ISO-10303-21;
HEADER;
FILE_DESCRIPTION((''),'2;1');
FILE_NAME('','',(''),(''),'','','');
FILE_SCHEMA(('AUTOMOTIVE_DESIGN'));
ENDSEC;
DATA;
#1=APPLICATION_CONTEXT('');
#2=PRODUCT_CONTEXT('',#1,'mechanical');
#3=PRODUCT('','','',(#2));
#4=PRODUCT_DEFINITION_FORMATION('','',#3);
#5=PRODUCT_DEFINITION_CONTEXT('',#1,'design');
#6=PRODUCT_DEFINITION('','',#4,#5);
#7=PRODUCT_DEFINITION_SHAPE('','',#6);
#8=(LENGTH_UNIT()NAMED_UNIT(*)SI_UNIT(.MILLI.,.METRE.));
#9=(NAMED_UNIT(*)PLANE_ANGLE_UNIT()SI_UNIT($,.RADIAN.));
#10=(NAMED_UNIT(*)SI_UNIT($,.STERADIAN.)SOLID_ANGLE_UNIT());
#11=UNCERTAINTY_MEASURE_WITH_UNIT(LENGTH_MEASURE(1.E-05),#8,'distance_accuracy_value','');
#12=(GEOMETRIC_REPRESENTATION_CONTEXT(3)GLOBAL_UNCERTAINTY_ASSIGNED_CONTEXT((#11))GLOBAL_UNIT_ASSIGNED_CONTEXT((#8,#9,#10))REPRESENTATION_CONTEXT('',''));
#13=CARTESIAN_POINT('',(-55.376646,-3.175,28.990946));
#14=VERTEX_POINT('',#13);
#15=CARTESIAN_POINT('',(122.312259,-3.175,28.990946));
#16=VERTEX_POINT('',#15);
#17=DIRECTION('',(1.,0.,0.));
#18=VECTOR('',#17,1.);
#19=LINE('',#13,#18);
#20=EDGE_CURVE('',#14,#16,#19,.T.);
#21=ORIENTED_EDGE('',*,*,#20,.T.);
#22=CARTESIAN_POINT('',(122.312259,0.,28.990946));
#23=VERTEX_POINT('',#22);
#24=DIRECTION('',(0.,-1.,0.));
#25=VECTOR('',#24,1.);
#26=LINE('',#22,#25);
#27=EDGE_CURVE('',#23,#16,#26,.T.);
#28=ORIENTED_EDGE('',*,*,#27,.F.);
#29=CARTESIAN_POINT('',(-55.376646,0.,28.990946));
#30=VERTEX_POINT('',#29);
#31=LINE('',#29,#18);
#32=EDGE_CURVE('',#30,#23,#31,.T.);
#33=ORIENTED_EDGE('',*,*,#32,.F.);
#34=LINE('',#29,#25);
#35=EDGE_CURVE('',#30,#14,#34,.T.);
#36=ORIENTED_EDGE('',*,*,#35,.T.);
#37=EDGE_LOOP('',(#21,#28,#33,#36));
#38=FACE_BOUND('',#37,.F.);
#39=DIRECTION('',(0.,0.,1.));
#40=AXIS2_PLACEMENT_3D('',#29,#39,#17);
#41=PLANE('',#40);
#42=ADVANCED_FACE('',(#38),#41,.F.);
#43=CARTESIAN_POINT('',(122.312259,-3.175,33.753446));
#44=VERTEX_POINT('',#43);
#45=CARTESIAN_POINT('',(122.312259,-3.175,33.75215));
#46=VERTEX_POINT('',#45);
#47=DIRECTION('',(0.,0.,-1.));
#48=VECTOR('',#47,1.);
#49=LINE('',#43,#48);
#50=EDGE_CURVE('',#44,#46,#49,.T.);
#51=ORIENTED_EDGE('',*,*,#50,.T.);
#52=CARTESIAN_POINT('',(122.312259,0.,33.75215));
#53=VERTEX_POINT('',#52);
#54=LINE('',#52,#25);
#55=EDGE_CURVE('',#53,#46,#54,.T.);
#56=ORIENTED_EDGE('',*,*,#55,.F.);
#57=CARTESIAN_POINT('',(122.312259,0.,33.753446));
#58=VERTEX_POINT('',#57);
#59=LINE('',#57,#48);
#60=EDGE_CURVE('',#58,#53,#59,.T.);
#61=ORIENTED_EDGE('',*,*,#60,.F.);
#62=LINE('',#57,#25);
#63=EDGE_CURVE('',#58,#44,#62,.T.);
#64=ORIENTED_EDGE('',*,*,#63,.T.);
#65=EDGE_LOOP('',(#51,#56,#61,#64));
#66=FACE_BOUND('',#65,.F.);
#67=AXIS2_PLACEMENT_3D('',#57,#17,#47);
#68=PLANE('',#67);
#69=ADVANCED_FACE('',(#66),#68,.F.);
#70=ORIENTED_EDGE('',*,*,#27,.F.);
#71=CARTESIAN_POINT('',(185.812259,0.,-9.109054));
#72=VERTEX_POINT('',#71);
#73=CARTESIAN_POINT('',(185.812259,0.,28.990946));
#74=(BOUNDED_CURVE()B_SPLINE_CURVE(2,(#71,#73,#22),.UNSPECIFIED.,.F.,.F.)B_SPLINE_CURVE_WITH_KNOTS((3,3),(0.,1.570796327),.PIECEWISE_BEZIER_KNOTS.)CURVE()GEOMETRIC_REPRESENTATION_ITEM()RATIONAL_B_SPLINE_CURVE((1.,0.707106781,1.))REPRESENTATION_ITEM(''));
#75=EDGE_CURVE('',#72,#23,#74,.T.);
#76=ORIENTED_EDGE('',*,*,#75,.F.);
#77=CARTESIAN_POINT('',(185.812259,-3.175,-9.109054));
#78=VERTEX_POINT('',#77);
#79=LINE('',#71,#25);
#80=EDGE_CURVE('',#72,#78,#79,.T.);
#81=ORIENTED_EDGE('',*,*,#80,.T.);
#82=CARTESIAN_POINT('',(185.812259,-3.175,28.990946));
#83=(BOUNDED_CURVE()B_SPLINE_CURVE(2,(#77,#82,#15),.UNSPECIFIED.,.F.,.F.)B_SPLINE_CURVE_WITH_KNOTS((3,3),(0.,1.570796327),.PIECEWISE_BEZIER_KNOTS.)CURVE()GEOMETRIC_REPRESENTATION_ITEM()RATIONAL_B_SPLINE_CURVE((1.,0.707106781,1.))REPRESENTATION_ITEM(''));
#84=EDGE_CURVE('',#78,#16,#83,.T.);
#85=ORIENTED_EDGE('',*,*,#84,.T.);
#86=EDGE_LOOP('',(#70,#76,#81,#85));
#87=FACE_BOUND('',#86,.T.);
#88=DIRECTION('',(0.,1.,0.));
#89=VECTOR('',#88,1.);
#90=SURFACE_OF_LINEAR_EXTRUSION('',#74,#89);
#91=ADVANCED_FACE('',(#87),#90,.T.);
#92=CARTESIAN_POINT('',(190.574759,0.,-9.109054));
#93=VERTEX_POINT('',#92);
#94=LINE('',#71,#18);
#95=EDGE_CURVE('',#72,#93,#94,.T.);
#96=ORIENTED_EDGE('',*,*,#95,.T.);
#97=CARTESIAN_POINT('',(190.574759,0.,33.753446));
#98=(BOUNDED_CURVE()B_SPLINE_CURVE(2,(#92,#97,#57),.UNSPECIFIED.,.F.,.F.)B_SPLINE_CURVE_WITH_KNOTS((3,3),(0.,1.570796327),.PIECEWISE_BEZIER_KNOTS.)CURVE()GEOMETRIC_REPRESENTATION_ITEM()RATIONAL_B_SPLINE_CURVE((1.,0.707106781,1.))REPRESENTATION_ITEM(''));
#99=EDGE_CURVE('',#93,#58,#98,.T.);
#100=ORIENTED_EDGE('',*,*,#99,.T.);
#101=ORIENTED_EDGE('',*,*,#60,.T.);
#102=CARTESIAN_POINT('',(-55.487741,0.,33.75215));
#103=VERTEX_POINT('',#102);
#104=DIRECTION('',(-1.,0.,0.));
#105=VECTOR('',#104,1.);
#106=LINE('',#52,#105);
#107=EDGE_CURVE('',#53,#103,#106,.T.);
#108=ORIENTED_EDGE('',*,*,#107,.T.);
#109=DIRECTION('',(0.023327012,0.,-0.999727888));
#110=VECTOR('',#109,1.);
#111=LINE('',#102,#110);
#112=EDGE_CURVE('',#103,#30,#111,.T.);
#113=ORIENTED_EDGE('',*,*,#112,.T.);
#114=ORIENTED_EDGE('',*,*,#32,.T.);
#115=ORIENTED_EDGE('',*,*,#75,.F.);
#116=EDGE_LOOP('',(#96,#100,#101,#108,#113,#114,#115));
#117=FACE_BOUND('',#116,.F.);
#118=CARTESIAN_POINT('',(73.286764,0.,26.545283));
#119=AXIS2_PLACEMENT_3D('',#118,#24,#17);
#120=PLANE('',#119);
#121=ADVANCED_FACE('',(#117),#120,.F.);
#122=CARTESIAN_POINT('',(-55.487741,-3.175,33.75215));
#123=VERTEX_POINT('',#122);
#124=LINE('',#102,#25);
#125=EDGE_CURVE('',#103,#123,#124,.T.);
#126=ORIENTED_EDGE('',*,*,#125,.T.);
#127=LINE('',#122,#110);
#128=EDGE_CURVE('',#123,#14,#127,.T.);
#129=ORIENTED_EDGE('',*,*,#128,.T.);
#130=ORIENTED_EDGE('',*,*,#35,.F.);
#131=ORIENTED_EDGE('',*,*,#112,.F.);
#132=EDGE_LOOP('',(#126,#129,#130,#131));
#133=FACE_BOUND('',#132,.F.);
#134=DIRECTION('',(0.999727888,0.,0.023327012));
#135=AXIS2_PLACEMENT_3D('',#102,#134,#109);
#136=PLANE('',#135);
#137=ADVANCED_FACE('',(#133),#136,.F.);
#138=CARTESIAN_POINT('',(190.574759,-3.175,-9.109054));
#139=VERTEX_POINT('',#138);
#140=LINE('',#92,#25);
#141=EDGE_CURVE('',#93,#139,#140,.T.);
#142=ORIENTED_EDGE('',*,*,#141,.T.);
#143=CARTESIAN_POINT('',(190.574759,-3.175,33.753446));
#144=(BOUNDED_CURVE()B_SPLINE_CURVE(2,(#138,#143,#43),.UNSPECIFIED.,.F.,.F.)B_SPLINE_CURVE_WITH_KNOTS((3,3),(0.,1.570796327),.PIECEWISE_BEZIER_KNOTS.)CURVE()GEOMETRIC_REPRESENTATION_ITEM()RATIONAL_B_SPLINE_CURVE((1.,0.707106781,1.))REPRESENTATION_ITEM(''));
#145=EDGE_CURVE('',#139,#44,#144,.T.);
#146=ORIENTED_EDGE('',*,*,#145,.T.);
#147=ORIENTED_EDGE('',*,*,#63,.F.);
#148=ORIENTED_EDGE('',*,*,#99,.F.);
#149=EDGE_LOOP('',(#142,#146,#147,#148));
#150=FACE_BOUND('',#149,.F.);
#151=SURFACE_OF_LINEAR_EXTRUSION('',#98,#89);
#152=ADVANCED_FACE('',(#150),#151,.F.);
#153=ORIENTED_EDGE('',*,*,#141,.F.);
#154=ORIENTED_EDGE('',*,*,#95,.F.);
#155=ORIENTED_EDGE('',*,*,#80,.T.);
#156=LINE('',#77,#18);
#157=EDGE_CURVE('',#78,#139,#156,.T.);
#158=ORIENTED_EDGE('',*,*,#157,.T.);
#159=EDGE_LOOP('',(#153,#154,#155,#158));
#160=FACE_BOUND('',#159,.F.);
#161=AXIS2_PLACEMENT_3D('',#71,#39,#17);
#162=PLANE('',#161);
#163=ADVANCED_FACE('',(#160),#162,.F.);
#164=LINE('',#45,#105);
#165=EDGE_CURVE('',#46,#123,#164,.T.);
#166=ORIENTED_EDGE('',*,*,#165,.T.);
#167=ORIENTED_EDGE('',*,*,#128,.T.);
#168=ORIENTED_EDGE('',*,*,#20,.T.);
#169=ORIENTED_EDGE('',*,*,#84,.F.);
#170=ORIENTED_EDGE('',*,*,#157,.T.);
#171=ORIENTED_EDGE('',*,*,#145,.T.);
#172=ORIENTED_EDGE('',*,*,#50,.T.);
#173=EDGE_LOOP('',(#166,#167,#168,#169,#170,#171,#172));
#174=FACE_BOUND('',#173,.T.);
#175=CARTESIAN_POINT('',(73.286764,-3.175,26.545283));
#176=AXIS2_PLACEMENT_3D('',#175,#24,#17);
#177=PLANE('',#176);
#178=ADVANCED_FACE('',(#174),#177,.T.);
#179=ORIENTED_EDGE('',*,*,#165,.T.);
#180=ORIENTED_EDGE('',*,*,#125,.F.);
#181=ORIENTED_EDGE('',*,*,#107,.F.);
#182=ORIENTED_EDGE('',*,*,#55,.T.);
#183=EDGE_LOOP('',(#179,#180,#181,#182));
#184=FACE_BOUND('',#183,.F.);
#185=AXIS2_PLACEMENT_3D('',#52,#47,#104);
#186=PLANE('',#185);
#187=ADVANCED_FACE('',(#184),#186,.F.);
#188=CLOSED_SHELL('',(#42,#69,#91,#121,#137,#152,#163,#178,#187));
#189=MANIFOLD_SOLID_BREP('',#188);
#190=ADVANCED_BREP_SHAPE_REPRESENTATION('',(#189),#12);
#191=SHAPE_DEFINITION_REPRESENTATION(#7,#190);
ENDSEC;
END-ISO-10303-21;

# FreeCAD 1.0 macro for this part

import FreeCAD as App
import Part
import Sketcher
from FreeCAD import Vector
Q = App.Units.Quantity

doc = App.newDocument("Part")
body = doc.addObject("PartDesign::Body", "Body")

# Sketch on XZ plane
sketch1 = doc.addObject("Sketcher::SketchObject", "Sketch")
body.addObject(sketch1)
sketch1.AttachmentSupport = (doc.XZ_Plane, [""])
sketch1.MapMode = "FlatFace"
sketch1.addGeometry([
    Part.LineSegment(Vector(122.312259, 33.75215, 0), Vector(-55.487741, 33.75215, 0)),  # 0
    Part.LineSegment(Vector(-55.487741, 33.75215, 0), Vector(-55.376646, 28.990946, 0)),  # 1
    Part.LineSegment(Vector(-55.376646, 28.990946, 0), Vector(122.312259, 28.990946, 0)),  # 2
    Part.BSplineCurve([Vector(185.812259, -9.109054, 0), Vector(185.812259, 28.990946, 0), Vector(122.312259, 28.990946, 0)], [3, 3], [0, 1.570796327], False, 2, [1, 0.707106781, 1], False),  # 3
    Part.LineSegment(Vector(185.812259, -9.109054, 0), Vector(190.574759, -9.109054, 0)),  # 4
    Part.BSplineCurve([Vector(190.574759, -9.109054, 0), Vector(190.574759, 33.753446, 0), Vector(122.312259, 33.753446, 0)], [3, 3], [0, 1.570796327], False, 2, [1, 0.707106781, 1], False),  # 5
    Part.LineSegment(Vector(122.312259, 33.753446, 0), Vector(122.312259, 33.75215, 0)),  # 6
], False)
sketch1.addConstraint([
    Sketcher.Constraint("Block", 3),
    Sketcher.Constraint("Block", 5),
    Sketcher.Constraint("Coincident", 0, 2, 1, 1),
    Sketcher.Constraint("Coincident", 1, 2, 2, 1),
    Sketcher.Constraint("Coincident", 2, 2, 3, 2),
    Sketcher.Constraint("Coincident", 3, 1, 4, 1),
    Sketcher.Constraint("Coincident", 4, 2, 5, 1),
    Sketcher.Constraint("Coincident", 5, 2, 6, 1),
    Sketcher.Constraint("Coincident", 6, 2, 0, 1),
    Sketcher.Constraint("Horizontal", 0),
    Sketcher.Constraint("Horizontal", 2),
    Sketcher.Constraint("Vertical", 6),
    Sketcher.Constraint("DistanceX", 0, 2, 0, 1, Q("7 in")),
    Sketcher.Constraint("Distance", 1, Q("0.1875 in")),
    Sketcher.Constraint("DistanceX", 2, 1, 2, 2, 177.688905),
])
pad1 = doc.addObject("PartDesign::Pad", "Pad")
body.addObject(pad1)
pad1.Profile = sketch1
pad1.Length = Q("0.125 in")

doc.recompute()
